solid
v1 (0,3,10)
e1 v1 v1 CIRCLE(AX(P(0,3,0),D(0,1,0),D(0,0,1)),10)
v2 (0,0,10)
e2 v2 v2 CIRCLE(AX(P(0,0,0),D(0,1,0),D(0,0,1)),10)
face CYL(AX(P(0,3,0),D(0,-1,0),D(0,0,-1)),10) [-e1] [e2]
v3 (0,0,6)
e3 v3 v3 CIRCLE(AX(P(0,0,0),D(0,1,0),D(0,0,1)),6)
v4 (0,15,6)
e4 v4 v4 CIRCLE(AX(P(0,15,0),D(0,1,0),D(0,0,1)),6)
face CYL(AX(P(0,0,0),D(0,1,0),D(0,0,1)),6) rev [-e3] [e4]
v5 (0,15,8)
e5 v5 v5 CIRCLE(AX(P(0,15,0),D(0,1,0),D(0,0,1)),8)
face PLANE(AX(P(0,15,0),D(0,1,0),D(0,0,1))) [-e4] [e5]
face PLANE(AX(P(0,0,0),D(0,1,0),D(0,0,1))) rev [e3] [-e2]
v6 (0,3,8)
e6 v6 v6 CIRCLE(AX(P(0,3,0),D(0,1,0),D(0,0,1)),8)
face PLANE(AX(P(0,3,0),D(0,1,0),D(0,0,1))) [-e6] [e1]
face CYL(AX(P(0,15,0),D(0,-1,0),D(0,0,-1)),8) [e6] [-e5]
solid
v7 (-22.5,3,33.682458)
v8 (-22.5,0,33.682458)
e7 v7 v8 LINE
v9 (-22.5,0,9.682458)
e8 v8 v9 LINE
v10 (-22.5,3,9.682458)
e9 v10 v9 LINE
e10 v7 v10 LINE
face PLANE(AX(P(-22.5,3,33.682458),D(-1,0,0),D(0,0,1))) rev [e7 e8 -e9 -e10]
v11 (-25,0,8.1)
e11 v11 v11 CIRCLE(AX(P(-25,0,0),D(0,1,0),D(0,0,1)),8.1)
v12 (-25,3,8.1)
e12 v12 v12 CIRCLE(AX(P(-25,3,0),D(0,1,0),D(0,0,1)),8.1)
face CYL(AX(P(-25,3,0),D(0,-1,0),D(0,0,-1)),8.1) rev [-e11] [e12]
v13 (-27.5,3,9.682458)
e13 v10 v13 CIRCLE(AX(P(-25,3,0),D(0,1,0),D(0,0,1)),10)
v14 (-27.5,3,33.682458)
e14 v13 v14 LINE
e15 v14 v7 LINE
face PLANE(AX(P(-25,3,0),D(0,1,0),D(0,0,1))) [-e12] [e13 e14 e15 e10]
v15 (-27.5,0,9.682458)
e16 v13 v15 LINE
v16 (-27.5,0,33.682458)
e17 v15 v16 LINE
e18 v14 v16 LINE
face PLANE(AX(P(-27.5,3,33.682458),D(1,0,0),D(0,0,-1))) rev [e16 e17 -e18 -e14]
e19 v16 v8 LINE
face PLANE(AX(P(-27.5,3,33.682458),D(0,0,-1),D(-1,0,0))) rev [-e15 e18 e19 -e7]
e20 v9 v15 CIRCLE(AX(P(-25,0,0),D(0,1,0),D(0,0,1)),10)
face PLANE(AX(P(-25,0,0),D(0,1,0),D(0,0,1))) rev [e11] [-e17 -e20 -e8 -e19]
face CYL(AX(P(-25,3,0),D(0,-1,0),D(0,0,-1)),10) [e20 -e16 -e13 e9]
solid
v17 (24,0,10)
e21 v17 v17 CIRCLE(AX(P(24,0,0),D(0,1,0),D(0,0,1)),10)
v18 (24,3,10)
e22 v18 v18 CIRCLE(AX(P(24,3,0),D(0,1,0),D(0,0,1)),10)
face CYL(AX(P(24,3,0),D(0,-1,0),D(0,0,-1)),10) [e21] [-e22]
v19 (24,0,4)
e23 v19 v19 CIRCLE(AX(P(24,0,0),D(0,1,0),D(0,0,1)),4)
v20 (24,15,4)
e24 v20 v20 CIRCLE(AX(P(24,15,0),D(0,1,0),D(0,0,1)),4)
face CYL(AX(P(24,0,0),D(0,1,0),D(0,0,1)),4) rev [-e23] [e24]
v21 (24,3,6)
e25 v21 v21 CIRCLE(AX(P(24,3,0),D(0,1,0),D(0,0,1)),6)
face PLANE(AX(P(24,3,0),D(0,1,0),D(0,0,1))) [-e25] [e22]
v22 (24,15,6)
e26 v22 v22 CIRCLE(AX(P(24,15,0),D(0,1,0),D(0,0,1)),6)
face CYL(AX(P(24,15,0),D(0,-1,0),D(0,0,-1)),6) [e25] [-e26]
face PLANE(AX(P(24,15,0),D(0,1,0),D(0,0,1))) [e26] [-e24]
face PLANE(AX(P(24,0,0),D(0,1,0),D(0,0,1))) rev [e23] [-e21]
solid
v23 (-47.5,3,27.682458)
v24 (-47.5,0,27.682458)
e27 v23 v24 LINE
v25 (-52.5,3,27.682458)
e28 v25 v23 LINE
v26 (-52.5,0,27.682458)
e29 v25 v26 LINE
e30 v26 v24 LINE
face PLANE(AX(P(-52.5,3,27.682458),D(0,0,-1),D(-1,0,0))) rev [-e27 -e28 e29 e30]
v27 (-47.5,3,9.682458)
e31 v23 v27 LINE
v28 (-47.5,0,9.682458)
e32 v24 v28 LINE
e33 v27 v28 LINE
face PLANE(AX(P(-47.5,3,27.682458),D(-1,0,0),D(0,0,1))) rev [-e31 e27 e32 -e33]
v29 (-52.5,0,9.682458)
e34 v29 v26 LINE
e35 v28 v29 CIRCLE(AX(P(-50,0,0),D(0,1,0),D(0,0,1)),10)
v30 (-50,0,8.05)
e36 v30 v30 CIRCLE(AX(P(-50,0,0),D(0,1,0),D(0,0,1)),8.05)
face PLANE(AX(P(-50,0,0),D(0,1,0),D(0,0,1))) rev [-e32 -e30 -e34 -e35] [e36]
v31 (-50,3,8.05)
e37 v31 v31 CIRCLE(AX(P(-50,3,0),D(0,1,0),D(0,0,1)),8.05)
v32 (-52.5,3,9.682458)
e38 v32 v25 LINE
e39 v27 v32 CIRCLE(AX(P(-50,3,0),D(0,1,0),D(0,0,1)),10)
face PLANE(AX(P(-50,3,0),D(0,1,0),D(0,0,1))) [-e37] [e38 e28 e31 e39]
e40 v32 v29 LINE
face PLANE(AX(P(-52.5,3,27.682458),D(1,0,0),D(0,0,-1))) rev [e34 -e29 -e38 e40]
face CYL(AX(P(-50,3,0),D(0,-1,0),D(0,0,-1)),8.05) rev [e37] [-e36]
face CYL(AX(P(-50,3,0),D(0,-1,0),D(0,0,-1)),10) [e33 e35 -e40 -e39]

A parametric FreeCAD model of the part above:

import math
import FreeCAD as App
import Part
import Sketcher

doc = App.newDocument("Part")
params = doc.addObject("Spreadsheet::Sheet", "Params")
for row, (alias, value) in enumerate([
    ("sketch1_diameter", "20 mm"),
    ("pad1_length", "3 mm"),
    ("sketch2_diameter", "16 mm"),
    ("pad2_length", "12 mm"),
    ("sketch3_diameter", "12 mm"),
    ("sketch4_diameter", "20 mm"),
    ("pad3_length", "3 mm"),
    ("sketch5_diameter", "12 mm"),
    ("pad4_length", "12 mm"),
    ("sketch6_diameter", "8 mm"),
    ("sketch7_radius", "10 mm"),
    ("sketch7_diameter", "16.1 mm"),
    ("sketch7_width", "5 mm"),
    ("sketch7_height", "18 mm"),
    ("pad5_length", "3 mm"),
    ("sketch8_radius", "10 mm"),
    ("sketch8_diameter", "16.2 mm"),
    ("sketch8_width", "5 mm"),
    ("sketch8_height", "24 mm"),
    ("pad6_length", "3 mm"),
], start=1):
    params.set(f"A{row}", alias)
    params.set(f"B{row}", "=" + value)
    params.setAlias(f"B{row}", alias)

body = doc.addObject("PartDesign::Body", "Body")

# Sketch on XZ plane
sketch1 = doc.addObject("Sketcher::SketchObject", "Sketch")
body.addObject(sketch1)
sketch1.AttachmentSupport = (doc.XZ_Plane, [""])
sketch1.MapMode = "FlatFace"
sketch1.addGeometry(Part.Circle(App.Vector(0, 0, 0), App.Vector(0, 0, 1), 10), False)
sketch1.addConstraint(Sketcher.Constraint("Coincident", 0, 3, -1, 1))
sketch1.addConstraint(Sketcher.Constraint("Diameter", 0, 20.0))
sketch1.setExpression("Constraints[1]", "Params.sketch1_diameter")
pad1 = doc.addObject("PartDesign::Pad", "Pad")
body.addObject(pad1)
pad1.Profile = sketch1
pad1.setExpression("Length", "Params.pad1_length")
pad1.Reversed = True

# Sketch on XZ plane
sketch2 = doc.addObject("Sketcher::SketchObject", "Sketch001")
body.addObject(sketch2)
sketch2.AttachmentSupport = (doc.XZ_Plane, [""])
sketch2.MapMode = "FlatFace"
sketch2.AttachmentOffset = App.Placement(App.Vector(0, 0, -3), App.Rotation())
sketch2.addGeometry(Part.Circle(App.Vector(0, 0, 0), App.Vector(0, 0, 1), 8), False)
sketch2.addConstraint(Sketcher.Constraint("Coincident", 0, 3, -1, 1))
sketch2.addConstraint(Sketcher.Constraint("Diameter", 0, 16.0))
sketch2.setExpression("Constraints[1]", "Params.sketch2_diameter")
pad2 = doc.addObject("PartDesign::Pad", "Pad001")
body.addObject(pad2)
pad2.Profile = sketch2
pad2.setExpression("Length", "Params.pad2_length")
pad2.Reversed = True

# Sketch on XZ plane
sketch3 = doc.addObject("Sketcher::SketchObject", "Sketch002")
body.addObject(sketch3)
sketch3.AttachmentSupport = (doc.XZ_Plane, [""])
sketch3.MapMode = "FlatFace"
sketch3.AttachmentOffset = App.Placement(App.Vector(0, 0, -15), App.Rotation())
sketch3.addGeometry(Part.Circle(App.Vector(0, 0, 0), App.Vector(0, 0, 1), 6), False)
sketch3.addConstraint(Sketcher.Constraint("Coincident", 0, 3, -1, 1))
sketch3.addConstraint(Sketcher.Constraint("Diameter", 0, 12.0))
sketch3.setExpression("Constraints[1]", "Params.sketch3_diameter")
pocket1 = doc.addObject("PartDesign::Pocket", "Pocket")
body.addObject(pocket1)
pocket1.Profile = sketch3
pocket1.Type = "ThroughAll"
pocket1.Reversed = True
body2 = doc.addObject("PartDesign::Body", "Body001")

# Sketch on XZ plane
sketch4 = doc.addObject("Sketcher::SketchObject", "Sketch003")
body2.addObject(sketch4)
sketch4.AttachmentSupport = (doc.getObject("XZ_Plane001"), [""])
sketch4.MapMode = "FlatFace"
sketch4.addGeometry(Part.Circle(App.Vector(24, 0, 0), App.Vector(0, 0, 1), 10), False)
sketch4.addConstraint(Sketcher.Constraint("PointOnObject", 0, 3, -1))
sketch4.addConstraint(Sketcher.Constraint("Diameter", 0, 20.0))
sketch4.addConstraint(Sketcher.Constraint("DistanceX", -1, 1, 0, 3, 24.0))
sketch4.setExpression("Constraints[1]", "Params.sketch4_diameter")
pad3 = doc.addObject("PartDesign::Pad", "Pad002")
body2.addObject(pad3)
pad3.Profile = sketch4
pad3.setExpression("Length", "Params.pad3_length")
pad3.Reversed = True

# Sketch on XZ plane
sketch5 = doc.addObject("Sketcher::SketchObject", "Sketch004")
body2.addObject(sketch5)
sketch5.AttachmentSupport = (doc.getObject("XZ_Plane001"), [""])
sketch5.MapMode = "FlatFace"
sketch5.AttachmentOffset = App.Placement(App.Vector(0, 0, -3), App.Rotation())
sketch5.addGeometry(Part.Circle(App.Vector(24, 0, 0), App.Vector(0, 0, 1), 6), False)
sketch5.addConstraint(Sketcher.Constraint("PointOnObject", 0, 3, -1))
sketch5.addConstraint(Sketcher.Constraint("Diameter", 0, 12.0))
sketch5.addConstraint(Sketcher.Constraint("DistanceX", -1, 1, 0, 3, 24.0))
sketch5.setExpression("Constraints[1]", "Params.sketch5_diameter")
pad4 = doc.addObject("PartDesign::Pad", "Pad003")
body2.addObject(pad4)
pad4.Profile = sketch5
pad4.setExpression("Length", "Params.pad4_length")
pad4.Reversed = True

# Sketch on XZ plane
sketch6 = doc.addObject("Sketcher::SketchObject", "Sketch005")
body2.addObject(sketch6)
sketch6.AttachmentSupport = (doc.getObject("XZ_Plane001"), [""])
sketch6.MapMode = "FlatFace"
sketch6.AttachmentOffset = App.Placement(App.Vector(0, 0, -15), App.Rotation())
sketch6.addGeometry(Part.Circle(App.Vector(24, 0, 0), App.Vector(0, 0, 1), 4), False)
sketch6.addConstraint(Sketcher.Constraint("PointOnObject", 0, 3, -1))
sketch6.addConstraint(Sketcher.Constraint("Diameter", 0, 8.0))
sketch6.addConstraint(Sketcher.Constraint("DistanceX", -1, 1, 0, 3, 24.0))
sketch6.setExpression("Constraints[1]", "Params.sketch6_diameter")
pocket2 = doc.addObject("PartDesign::Pocket", "Pocket001")
body2.addObject(pocket2)
pocket2.Profile = sketch6
pocket2.Type = "ThroughAll"
pocket2.Reversed = True
body3 = doc.addObject("PartDesign::Body", "Body002")

# Sketch on XZ plane
sketch7 = doc.addObject("Sketcher::SketchObject", "Sketch006")
body3.addObject(sketch7)
sketch7.AttachmentSupport = (doc.getObject("XZ_Plane002"), [""])
sketch7.MapMode = "FlatFace"
sketch7.addGeometry(Part.LineSegment(App.Vector(-52, 28, 0), App.Vector(-48, 28, 0)), False)
sketch7.addGeometry(Part.LineSegment(App.Vector(-48, 28, 0), App.Vector(-48, 10, 0)), False)
sketch7.addGeometry(Part.ArcOfCircle(Part.Circle(App.Vector(-50, 0, 0), App.Vector(0, 0, 1), 10), math.radians(104), math.radians(436)), False)
sketch7.addGeometry(Part.LineSegment(App.Vector(-52, 10, 0), App.Vector(-52, 28, 0)), False)
sketch7.addGeometry(Part.Circle(App.Vector(-50, 0, 0), App.Vector(0, 0, 1), 8), False)
sketch7.addConstraint(Sketcher.Constraint("Coincident", 0, 2, 1, 1))
sketch7.addConstraint(Sketcher.Constraint("Coincident", 1, 2, 2, 2))
sketch7.addConstraint(Sketcher.Constraint("Coincident", 2, 1, 3, 1))
sketch7.addConstraint(Sketcher.Constraint("Coincident", 3, 2, 0, 1))
sketch7.addConstraint(Sketcher.Constraint("Horizontal", 0))
sketch7.addConstraint(Sketcher.Constraint("Vertical", 1))
sketch7.addConstraint(Sketcher.Constraint("Vertical", 3))
sketch7.addConstraint(Sketcher.Constraint("Coincident", 4, 3, 2, 3))
sketch7.addConstraint(Sketcher.Constraint("PointOnObject", 2, 3, -1))
sketch7.addConstraint(Sketcher.Constraint("Horizontal", 1, 2, 2, 1))
sketch7.addConstraint(Sketcher.Constraint("Radius", 2, 10.0))
sketch7.addConstraint(Sketcher.Constraint("Diameter", 4, 16.1))
sketch7.addConstraint(Sketcher.Constraint("DistanceX", 0, 1, 0, 2, 5.0))
sketch7.addConstraint(Sketcher.Constraint("DistanceY", 1, 2, 1, 1, 18.0))
sketch7.addConstraint(Sketcher.Constraint("DistanceX", 2, 3, -1, 1, 50.0))
sketch7.setExpression("Constraints[10]", "Params.sketch7_radius")
sketch7.setExpression("Constraints[11]", "Params.sketch7_diameter")
sketch7.setExpression("Constraints[12]", "Params.sketch7_width")
sketch7.setExpression("Constraints[13]", "Params.sketch7_height")
pad5 = doc.addObject("PartDesign::Pad", "Pad004")
body3.addObject(pad5)
pad5.Profile = sketch7
pad5.setExpression("Length", "Params.pad5_length")
pad5.Reversed = True
body4 = doc.addObject("PartDesign::Body", "Body003")

# Sketch on XZ plane
sketch8 = doc.addObject("Sketcher::SketchObject", "Sketch007")
body4.addObject(sketch8)
sketch8.AttachmentSupport = (doc.getObject("XZ_Plane003"), [""])
sketch8.MapMode = "FlatFace"
sketch8.addGeometry(Part.LineSegment(App.Vector(-28, 34, 0), App.Vector(-22, 34, 0)), False)
sketch8.addGeometry(Part.LineSegment(App.Vector(-22, 34, 0), App.Vector(-22, 10, 0)), False)
sketch8.addGeometry(Part.ArcOfCircle(Part.Circle(App.Vector(-25, 0, 0), App.Vector(0, 0, 1), 10), math.radians(104), math.radians(436)), False)
sketch8.addGeometry(Part.LineSegment(App.Vector(-28, 10, 0), App.Vector(-28, 34, 0)), False)
sketch8.addGeometry(Part.Circle(App.Vector(-25, 0, 0), App.Vector(0, 0, 1), 8), False)
sketch8.addConstraint(Sketcher.Constraint("Coincident", 0, 2, 1, 1))
sketch8.addConstraint(Sketcher.Constraint("Coincident", 1, 2, 2, 2))
sketch8.addConstraint(Sketcher.Constraint("Coincident", 2, 1, 3, 1))
sketch8.addConstraint(Sketcher.Constraint("Coincident", 3, 2, 0, 1))
sketch8.addConstraint(Sketcher.Constraint("Horizontal", 0))
sketch8.addConstraint(Sketcher.Constraint("Vertical", 1))
sketch8.addConstraint(Sketcher.Constraint("Vertical", 3))
sketch8.addConstraint(Sketcher.Constraint("Coincident", 4, 3, 2, 3))
sketch8.addConstraint(Sketcher.Constraint("PointOnObject", 2, 3, -1))
sketch8.addConstraint(Sketcher.Constraint("Horizontal", 1, 2, 2, 1))
sketch8.addConstraint(Sketcher.Constraint("Radius", 2, 10.0))
sketch8.addConstraint(Sketcher.Constraint("Diameter", 4, 16.2))
sketch8.addConstraint(Sketcher.Constraint("DistanceX", 0, 1, 0, 2, 5.0))
sketch8.addConstraint(Sketcher.Constraint("DistanceY", 1, 2, 1, 1, 24.0))
sketch8.addConstraint(Sketcher.Constraint("DistanceX", 2, 3, -1, 1, 25.0))
sketch8.setExpression("Constraints[10]", "Params.sketch8_radius")
sketch8.setExpression("Constraints[11]", "Params.sketch8_diameter")
sketch8.setExpression("Constraints[12]", "Params.sketch8_width")
sketch8.setExpression("Constraints[13]", "Params.sketch8_height")
pad6 = doc.addObject("PartDesign::Pad", "Pad005")
body4.addObject(pad6)
pad6.Profile = sketch8
pad6.setExpression("Length", "Params.pad6_length")
pad6.Reversed = True

doc.recompute()
